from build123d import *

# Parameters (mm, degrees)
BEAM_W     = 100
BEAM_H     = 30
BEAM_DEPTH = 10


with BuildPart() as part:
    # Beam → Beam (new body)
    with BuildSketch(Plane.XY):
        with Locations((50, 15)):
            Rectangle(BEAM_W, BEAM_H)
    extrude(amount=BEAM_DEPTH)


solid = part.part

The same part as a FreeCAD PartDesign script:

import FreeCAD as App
import Part
import Sketcher
from FreeCAD import Vector

doc = App.newDocument("Part")
params = doc.addObject("Spreadsheet::Sheet", "Params")
for row, (alias, value) in enumerate([
    ("sketch1_width", "100 mm"),
    ("sketch1_height", "30 mm"),
    ("pad1_length", "10 mm"),
], start=1):
    params.set(f"A{row}", alias)
    params.set(f"B{row}", "=" + value)
    params.setAlias(f"B{row}", alias)

body = doc.addObject("PartDesign::Body", "Body")

sketch1 = body.newObject("Sketcher::SketchObject", "Sketch")
sketch1.AttachmentSupport = (doc.getObject("XY_Plane"), [""])
sketch1.MapMode = "FlatFace"
sketch1.addGeometry([
    Part.LineSegment(Vector(0, 30, 0), Vector(0, 0, 0)),
    Part.LineSegment(Vector(0, 0, 0), Vector(100, 0, 0)),
    Part.LineSegment(Vector(100, 0, 0), Vector(100, 30, 0)),
    Part.LineSegment(Vector(100, 30, 0), Vector(0, 30, 0)),
], False)
sketch1.addConstraint([
    Sketcher.Constraint("Coincident", 0, 2, 1, 1),
    Sketcher.Constraint("Coincident", 1, 2, 2, 1),
    Sketcher.Constraint("Coincident", 2, 2, 3, 1),
    Sketcher.Constraint("Coincident", 3, 2, 0, 1),
    Sketcher.Constraint("Vertical", 0),
    Sketcher.Constraint("Horizontal", 1),
    Sketcher.Constraint("Vertical", 2),
    Sketcher.Constraint("Horizontal", 3),
    Sketcher.Constraint("Coincident", 0, 2, -1, 1),
    Sketcher.Constraint("DistanceX", 1, 1, 1, 2, 100.0),
    Sketcher.Constraint("DistanceY", 0, 2, 0, 1, 30.0),
])
sketch1.setExpression("Constraints[9]", "Params.sketch1_width")
sketch1.setExpression("Constraints[10]", "Params.sketch1_height")
pad1 = body.newObject("PartDesign::Pad", "Pad")
pad1.Profile = sketch1
pad1.setExpression("Length", "Params.pad1_length")

doc.recompute()
